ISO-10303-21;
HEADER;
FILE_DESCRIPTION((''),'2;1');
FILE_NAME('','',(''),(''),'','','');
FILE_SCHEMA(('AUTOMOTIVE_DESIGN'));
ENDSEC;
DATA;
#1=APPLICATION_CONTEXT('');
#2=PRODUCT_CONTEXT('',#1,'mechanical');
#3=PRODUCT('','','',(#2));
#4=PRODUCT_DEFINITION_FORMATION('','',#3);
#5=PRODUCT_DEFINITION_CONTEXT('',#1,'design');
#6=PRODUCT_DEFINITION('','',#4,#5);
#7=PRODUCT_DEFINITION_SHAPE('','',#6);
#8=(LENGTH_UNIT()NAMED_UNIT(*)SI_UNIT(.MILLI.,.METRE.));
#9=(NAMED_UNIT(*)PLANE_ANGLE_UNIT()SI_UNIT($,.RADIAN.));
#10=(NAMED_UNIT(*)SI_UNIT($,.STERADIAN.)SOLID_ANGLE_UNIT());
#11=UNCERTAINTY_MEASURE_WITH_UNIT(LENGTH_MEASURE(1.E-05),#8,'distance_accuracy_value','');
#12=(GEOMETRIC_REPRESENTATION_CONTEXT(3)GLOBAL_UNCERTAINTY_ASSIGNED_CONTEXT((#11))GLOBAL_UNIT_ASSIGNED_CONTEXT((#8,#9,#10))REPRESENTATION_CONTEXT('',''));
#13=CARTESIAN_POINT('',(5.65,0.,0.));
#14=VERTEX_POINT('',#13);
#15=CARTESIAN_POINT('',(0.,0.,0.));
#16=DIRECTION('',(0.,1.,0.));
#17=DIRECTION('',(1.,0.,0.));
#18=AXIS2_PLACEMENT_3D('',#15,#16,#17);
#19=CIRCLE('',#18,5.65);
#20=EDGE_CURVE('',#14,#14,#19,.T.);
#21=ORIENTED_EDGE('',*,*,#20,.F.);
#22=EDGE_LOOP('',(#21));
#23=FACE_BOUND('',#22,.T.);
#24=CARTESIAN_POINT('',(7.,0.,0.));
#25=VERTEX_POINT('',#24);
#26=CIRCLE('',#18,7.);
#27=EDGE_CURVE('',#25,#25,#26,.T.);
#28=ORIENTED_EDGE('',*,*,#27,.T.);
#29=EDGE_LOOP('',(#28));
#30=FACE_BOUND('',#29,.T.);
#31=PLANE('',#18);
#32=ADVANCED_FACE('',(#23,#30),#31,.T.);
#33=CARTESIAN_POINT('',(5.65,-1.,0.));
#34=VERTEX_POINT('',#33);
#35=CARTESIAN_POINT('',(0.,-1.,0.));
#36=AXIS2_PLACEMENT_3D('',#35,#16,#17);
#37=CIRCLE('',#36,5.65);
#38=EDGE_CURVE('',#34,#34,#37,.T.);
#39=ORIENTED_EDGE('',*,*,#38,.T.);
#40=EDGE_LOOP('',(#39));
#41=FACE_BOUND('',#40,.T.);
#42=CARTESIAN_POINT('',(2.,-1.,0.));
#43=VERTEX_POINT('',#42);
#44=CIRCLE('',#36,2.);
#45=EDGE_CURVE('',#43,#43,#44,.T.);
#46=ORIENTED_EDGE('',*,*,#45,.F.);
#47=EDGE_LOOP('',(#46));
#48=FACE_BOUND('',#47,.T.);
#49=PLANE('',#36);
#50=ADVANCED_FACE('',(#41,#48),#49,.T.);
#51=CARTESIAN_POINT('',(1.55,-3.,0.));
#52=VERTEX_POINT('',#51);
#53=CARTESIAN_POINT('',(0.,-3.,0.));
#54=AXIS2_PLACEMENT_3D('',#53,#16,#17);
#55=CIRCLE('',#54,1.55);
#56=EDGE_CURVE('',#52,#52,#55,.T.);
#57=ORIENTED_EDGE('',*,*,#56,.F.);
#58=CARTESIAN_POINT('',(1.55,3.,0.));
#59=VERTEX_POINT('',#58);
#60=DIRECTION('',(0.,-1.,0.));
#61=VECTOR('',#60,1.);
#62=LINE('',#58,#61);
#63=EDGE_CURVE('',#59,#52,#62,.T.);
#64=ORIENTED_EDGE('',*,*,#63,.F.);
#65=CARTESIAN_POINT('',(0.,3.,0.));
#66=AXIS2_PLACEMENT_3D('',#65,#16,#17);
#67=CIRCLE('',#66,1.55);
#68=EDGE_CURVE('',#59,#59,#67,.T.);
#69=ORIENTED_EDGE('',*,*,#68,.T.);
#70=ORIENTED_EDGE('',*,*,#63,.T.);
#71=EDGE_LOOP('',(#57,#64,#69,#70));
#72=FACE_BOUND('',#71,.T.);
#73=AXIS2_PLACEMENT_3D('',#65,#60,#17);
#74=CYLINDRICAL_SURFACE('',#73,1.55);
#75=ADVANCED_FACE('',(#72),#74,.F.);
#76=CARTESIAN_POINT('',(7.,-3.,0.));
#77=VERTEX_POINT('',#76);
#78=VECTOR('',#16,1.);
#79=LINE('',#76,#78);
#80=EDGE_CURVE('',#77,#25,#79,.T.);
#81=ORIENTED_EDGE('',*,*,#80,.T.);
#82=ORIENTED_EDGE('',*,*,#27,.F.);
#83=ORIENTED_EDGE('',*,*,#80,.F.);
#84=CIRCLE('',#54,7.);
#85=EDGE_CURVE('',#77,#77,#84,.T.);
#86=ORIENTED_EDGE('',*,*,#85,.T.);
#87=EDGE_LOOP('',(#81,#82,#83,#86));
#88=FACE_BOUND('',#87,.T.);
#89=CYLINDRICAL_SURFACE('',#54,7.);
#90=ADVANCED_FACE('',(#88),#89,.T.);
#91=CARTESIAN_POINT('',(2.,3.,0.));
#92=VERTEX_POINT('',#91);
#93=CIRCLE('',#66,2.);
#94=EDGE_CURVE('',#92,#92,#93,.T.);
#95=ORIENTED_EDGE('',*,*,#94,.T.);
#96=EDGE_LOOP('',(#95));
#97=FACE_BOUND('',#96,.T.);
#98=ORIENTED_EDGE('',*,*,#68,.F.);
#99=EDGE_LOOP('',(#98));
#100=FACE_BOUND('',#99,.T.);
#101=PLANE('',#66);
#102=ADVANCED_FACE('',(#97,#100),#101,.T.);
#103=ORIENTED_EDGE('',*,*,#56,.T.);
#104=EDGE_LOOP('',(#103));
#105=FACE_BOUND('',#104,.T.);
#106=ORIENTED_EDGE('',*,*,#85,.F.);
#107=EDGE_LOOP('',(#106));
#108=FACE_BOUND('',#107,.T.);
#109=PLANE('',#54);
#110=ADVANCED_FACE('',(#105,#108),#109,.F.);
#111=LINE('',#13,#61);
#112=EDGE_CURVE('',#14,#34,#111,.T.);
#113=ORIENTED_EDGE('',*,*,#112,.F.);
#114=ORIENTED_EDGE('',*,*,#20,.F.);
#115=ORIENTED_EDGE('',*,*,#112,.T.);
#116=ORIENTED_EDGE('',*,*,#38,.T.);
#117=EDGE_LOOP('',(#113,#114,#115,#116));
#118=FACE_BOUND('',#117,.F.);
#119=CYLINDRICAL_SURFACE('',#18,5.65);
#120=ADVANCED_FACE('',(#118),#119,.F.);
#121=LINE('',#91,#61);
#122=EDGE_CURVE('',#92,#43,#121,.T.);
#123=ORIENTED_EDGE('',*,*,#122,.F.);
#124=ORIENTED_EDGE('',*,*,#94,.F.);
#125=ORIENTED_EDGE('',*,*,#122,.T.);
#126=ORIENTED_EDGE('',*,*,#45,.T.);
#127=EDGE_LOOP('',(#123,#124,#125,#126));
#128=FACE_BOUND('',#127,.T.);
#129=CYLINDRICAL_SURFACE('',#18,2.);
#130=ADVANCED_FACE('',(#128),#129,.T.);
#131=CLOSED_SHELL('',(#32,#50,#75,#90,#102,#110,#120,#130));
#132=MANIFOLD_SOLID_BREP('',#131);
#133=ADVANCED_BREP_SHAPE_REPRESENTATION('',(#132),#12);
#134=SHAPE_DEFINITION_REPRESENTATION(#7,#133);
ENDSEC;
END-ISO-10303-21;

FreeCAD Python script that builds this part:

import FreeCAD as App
import Part
import Sketcher

V = App.Vector

doc = App.newDocument("Part")
body = doc.addObject("PartDesign::Body", "Body")

sketch1 = body.newObject("Sketcher::SketchObject", "Sketch")
sketch1.AttachmentSupport = (doc.getObject("XY_Plane"), [""])
sketch1.MapMode = "FlatFace"
sketch1.addGeometry(Part.LineSegment(V(2, 3, 0), V(1.55, 3, 0)), False)
sketch1.addGeometry(Part.LineSegment(V(1.55, 3, 0), V(1.55, -3, 0)), False)
sketch1.addGeometry(Part.LineSegment(V(1.55, -3, 0), V(7, -3, 0)), False)
sketch1.addGeometry(Part.LineSegment(V(7, -3, 0), V(7, 0, 0)), False)
sketch1.addGeometry(Part.LineSegment(V(7, 0, 0), V(2, 0, 0)), False)
sketch1.addGeometry(Part.LineSegment(V(2, 0, 0), V(2, 3, 0)), False)
sketch1.addConstraint(Sketcher.Constraint("Coincident", 0, 2, 1, 1))
sketch1.addConstraint(Sketcher.Constraint("Coincident", 1, 2, 2, 1))
sketch1.addConstraint(Sketcher.Constraint("Coincident", 2, 2, 3, 1))
sketch1.addConstraint(Sketcher.Constraint("Coincident", 3, 2, 4, 1))
sketch1.addConstraint(Sketcher.Constraint("Coincident", 4, 2, 5, 1))
sketch1.addConstraint(Sketcher.Constraint("Coincident", 5, 2, 0, 1))
sketch1.addConstraint(Sketcher.Constraint("Horizontal", 0))
sketch1.addConstraint(Sketcher.Constraint("Vertical", 1))
sketch1.addConstraint(Sketcher.Constraint("Horizontal", 2))
sketch1.addConstraint(Sketcher.Constraint("Vertical", 3))
sketch1.addConstraint(Sketcher.Constraint("Horizontal", 4))
sketch1.addConstraint(Sketcher.Constraint("Vertical", 5))
sketch1.addConstraint(Sketcher.Constraint("PointOnObject", 3, 2, -1))
sketch1.addConstraint(Sketcher.Constraint("Equal", 3, 5))
sketch1.addConstraint(Sketcher.Constraint("DistanceY", 3, 1, 3, 2, 3.0))
sketch1.addConstraint(Sketcher.Constraint("DistanceX", -1, 1, 2, 2, 7.0))
sketch1.addConstraint(Sketcher.Constraint("DistanceX", -1, 1, 4, 2, 2.0))
sketch1.addConstraint(Sketcher.Constraint("DistanceX", -1, 1, 0, 2, 1.55))
revolution = body.newObject("PartDesign::Revolution", "Revolution")
revolution.Profile = sketch1
revolution.ReferenceAxis = (sketch1, ["V_Axis"])
revolution.Angle = 360

sketch2 = body.newObject("Sketcher::SketchObject", "Sketch001")
sketch2.AttachmentSupport = (doc.getObject("XZ_Plane"), [""])
sketch2.MapMode = "FlatFace"
sketch2.addGeometry(Part.Circle(V(0, 0, 0), V(0, 0, 1), 5.7), False)
sketch2.addGeometry(Part.Circle(V(0, 0, 0), V(0, 0, 1), 2), False)
sketch2.addConstraint(Sketcher.Constraint("Coincident", 0, 3, -1, 1))
sketch2.addConstraint(Sketcher.Constraint("Coincident", 1, 3, -1, 1))
sketch2.addConstraint(Sketcher.Constraint("Diameter", 0, 11.3))
sketch2.addConstraint(Sketcher.Constraint("Diameter", 1, 4.0))
pocket1 = body.newObject("PartDesign::Pocket", "Pocket")
pocket1.Profile = sketch2
pocket1.Length = 1
pocket1.Reversed = True

doc.recompute()
